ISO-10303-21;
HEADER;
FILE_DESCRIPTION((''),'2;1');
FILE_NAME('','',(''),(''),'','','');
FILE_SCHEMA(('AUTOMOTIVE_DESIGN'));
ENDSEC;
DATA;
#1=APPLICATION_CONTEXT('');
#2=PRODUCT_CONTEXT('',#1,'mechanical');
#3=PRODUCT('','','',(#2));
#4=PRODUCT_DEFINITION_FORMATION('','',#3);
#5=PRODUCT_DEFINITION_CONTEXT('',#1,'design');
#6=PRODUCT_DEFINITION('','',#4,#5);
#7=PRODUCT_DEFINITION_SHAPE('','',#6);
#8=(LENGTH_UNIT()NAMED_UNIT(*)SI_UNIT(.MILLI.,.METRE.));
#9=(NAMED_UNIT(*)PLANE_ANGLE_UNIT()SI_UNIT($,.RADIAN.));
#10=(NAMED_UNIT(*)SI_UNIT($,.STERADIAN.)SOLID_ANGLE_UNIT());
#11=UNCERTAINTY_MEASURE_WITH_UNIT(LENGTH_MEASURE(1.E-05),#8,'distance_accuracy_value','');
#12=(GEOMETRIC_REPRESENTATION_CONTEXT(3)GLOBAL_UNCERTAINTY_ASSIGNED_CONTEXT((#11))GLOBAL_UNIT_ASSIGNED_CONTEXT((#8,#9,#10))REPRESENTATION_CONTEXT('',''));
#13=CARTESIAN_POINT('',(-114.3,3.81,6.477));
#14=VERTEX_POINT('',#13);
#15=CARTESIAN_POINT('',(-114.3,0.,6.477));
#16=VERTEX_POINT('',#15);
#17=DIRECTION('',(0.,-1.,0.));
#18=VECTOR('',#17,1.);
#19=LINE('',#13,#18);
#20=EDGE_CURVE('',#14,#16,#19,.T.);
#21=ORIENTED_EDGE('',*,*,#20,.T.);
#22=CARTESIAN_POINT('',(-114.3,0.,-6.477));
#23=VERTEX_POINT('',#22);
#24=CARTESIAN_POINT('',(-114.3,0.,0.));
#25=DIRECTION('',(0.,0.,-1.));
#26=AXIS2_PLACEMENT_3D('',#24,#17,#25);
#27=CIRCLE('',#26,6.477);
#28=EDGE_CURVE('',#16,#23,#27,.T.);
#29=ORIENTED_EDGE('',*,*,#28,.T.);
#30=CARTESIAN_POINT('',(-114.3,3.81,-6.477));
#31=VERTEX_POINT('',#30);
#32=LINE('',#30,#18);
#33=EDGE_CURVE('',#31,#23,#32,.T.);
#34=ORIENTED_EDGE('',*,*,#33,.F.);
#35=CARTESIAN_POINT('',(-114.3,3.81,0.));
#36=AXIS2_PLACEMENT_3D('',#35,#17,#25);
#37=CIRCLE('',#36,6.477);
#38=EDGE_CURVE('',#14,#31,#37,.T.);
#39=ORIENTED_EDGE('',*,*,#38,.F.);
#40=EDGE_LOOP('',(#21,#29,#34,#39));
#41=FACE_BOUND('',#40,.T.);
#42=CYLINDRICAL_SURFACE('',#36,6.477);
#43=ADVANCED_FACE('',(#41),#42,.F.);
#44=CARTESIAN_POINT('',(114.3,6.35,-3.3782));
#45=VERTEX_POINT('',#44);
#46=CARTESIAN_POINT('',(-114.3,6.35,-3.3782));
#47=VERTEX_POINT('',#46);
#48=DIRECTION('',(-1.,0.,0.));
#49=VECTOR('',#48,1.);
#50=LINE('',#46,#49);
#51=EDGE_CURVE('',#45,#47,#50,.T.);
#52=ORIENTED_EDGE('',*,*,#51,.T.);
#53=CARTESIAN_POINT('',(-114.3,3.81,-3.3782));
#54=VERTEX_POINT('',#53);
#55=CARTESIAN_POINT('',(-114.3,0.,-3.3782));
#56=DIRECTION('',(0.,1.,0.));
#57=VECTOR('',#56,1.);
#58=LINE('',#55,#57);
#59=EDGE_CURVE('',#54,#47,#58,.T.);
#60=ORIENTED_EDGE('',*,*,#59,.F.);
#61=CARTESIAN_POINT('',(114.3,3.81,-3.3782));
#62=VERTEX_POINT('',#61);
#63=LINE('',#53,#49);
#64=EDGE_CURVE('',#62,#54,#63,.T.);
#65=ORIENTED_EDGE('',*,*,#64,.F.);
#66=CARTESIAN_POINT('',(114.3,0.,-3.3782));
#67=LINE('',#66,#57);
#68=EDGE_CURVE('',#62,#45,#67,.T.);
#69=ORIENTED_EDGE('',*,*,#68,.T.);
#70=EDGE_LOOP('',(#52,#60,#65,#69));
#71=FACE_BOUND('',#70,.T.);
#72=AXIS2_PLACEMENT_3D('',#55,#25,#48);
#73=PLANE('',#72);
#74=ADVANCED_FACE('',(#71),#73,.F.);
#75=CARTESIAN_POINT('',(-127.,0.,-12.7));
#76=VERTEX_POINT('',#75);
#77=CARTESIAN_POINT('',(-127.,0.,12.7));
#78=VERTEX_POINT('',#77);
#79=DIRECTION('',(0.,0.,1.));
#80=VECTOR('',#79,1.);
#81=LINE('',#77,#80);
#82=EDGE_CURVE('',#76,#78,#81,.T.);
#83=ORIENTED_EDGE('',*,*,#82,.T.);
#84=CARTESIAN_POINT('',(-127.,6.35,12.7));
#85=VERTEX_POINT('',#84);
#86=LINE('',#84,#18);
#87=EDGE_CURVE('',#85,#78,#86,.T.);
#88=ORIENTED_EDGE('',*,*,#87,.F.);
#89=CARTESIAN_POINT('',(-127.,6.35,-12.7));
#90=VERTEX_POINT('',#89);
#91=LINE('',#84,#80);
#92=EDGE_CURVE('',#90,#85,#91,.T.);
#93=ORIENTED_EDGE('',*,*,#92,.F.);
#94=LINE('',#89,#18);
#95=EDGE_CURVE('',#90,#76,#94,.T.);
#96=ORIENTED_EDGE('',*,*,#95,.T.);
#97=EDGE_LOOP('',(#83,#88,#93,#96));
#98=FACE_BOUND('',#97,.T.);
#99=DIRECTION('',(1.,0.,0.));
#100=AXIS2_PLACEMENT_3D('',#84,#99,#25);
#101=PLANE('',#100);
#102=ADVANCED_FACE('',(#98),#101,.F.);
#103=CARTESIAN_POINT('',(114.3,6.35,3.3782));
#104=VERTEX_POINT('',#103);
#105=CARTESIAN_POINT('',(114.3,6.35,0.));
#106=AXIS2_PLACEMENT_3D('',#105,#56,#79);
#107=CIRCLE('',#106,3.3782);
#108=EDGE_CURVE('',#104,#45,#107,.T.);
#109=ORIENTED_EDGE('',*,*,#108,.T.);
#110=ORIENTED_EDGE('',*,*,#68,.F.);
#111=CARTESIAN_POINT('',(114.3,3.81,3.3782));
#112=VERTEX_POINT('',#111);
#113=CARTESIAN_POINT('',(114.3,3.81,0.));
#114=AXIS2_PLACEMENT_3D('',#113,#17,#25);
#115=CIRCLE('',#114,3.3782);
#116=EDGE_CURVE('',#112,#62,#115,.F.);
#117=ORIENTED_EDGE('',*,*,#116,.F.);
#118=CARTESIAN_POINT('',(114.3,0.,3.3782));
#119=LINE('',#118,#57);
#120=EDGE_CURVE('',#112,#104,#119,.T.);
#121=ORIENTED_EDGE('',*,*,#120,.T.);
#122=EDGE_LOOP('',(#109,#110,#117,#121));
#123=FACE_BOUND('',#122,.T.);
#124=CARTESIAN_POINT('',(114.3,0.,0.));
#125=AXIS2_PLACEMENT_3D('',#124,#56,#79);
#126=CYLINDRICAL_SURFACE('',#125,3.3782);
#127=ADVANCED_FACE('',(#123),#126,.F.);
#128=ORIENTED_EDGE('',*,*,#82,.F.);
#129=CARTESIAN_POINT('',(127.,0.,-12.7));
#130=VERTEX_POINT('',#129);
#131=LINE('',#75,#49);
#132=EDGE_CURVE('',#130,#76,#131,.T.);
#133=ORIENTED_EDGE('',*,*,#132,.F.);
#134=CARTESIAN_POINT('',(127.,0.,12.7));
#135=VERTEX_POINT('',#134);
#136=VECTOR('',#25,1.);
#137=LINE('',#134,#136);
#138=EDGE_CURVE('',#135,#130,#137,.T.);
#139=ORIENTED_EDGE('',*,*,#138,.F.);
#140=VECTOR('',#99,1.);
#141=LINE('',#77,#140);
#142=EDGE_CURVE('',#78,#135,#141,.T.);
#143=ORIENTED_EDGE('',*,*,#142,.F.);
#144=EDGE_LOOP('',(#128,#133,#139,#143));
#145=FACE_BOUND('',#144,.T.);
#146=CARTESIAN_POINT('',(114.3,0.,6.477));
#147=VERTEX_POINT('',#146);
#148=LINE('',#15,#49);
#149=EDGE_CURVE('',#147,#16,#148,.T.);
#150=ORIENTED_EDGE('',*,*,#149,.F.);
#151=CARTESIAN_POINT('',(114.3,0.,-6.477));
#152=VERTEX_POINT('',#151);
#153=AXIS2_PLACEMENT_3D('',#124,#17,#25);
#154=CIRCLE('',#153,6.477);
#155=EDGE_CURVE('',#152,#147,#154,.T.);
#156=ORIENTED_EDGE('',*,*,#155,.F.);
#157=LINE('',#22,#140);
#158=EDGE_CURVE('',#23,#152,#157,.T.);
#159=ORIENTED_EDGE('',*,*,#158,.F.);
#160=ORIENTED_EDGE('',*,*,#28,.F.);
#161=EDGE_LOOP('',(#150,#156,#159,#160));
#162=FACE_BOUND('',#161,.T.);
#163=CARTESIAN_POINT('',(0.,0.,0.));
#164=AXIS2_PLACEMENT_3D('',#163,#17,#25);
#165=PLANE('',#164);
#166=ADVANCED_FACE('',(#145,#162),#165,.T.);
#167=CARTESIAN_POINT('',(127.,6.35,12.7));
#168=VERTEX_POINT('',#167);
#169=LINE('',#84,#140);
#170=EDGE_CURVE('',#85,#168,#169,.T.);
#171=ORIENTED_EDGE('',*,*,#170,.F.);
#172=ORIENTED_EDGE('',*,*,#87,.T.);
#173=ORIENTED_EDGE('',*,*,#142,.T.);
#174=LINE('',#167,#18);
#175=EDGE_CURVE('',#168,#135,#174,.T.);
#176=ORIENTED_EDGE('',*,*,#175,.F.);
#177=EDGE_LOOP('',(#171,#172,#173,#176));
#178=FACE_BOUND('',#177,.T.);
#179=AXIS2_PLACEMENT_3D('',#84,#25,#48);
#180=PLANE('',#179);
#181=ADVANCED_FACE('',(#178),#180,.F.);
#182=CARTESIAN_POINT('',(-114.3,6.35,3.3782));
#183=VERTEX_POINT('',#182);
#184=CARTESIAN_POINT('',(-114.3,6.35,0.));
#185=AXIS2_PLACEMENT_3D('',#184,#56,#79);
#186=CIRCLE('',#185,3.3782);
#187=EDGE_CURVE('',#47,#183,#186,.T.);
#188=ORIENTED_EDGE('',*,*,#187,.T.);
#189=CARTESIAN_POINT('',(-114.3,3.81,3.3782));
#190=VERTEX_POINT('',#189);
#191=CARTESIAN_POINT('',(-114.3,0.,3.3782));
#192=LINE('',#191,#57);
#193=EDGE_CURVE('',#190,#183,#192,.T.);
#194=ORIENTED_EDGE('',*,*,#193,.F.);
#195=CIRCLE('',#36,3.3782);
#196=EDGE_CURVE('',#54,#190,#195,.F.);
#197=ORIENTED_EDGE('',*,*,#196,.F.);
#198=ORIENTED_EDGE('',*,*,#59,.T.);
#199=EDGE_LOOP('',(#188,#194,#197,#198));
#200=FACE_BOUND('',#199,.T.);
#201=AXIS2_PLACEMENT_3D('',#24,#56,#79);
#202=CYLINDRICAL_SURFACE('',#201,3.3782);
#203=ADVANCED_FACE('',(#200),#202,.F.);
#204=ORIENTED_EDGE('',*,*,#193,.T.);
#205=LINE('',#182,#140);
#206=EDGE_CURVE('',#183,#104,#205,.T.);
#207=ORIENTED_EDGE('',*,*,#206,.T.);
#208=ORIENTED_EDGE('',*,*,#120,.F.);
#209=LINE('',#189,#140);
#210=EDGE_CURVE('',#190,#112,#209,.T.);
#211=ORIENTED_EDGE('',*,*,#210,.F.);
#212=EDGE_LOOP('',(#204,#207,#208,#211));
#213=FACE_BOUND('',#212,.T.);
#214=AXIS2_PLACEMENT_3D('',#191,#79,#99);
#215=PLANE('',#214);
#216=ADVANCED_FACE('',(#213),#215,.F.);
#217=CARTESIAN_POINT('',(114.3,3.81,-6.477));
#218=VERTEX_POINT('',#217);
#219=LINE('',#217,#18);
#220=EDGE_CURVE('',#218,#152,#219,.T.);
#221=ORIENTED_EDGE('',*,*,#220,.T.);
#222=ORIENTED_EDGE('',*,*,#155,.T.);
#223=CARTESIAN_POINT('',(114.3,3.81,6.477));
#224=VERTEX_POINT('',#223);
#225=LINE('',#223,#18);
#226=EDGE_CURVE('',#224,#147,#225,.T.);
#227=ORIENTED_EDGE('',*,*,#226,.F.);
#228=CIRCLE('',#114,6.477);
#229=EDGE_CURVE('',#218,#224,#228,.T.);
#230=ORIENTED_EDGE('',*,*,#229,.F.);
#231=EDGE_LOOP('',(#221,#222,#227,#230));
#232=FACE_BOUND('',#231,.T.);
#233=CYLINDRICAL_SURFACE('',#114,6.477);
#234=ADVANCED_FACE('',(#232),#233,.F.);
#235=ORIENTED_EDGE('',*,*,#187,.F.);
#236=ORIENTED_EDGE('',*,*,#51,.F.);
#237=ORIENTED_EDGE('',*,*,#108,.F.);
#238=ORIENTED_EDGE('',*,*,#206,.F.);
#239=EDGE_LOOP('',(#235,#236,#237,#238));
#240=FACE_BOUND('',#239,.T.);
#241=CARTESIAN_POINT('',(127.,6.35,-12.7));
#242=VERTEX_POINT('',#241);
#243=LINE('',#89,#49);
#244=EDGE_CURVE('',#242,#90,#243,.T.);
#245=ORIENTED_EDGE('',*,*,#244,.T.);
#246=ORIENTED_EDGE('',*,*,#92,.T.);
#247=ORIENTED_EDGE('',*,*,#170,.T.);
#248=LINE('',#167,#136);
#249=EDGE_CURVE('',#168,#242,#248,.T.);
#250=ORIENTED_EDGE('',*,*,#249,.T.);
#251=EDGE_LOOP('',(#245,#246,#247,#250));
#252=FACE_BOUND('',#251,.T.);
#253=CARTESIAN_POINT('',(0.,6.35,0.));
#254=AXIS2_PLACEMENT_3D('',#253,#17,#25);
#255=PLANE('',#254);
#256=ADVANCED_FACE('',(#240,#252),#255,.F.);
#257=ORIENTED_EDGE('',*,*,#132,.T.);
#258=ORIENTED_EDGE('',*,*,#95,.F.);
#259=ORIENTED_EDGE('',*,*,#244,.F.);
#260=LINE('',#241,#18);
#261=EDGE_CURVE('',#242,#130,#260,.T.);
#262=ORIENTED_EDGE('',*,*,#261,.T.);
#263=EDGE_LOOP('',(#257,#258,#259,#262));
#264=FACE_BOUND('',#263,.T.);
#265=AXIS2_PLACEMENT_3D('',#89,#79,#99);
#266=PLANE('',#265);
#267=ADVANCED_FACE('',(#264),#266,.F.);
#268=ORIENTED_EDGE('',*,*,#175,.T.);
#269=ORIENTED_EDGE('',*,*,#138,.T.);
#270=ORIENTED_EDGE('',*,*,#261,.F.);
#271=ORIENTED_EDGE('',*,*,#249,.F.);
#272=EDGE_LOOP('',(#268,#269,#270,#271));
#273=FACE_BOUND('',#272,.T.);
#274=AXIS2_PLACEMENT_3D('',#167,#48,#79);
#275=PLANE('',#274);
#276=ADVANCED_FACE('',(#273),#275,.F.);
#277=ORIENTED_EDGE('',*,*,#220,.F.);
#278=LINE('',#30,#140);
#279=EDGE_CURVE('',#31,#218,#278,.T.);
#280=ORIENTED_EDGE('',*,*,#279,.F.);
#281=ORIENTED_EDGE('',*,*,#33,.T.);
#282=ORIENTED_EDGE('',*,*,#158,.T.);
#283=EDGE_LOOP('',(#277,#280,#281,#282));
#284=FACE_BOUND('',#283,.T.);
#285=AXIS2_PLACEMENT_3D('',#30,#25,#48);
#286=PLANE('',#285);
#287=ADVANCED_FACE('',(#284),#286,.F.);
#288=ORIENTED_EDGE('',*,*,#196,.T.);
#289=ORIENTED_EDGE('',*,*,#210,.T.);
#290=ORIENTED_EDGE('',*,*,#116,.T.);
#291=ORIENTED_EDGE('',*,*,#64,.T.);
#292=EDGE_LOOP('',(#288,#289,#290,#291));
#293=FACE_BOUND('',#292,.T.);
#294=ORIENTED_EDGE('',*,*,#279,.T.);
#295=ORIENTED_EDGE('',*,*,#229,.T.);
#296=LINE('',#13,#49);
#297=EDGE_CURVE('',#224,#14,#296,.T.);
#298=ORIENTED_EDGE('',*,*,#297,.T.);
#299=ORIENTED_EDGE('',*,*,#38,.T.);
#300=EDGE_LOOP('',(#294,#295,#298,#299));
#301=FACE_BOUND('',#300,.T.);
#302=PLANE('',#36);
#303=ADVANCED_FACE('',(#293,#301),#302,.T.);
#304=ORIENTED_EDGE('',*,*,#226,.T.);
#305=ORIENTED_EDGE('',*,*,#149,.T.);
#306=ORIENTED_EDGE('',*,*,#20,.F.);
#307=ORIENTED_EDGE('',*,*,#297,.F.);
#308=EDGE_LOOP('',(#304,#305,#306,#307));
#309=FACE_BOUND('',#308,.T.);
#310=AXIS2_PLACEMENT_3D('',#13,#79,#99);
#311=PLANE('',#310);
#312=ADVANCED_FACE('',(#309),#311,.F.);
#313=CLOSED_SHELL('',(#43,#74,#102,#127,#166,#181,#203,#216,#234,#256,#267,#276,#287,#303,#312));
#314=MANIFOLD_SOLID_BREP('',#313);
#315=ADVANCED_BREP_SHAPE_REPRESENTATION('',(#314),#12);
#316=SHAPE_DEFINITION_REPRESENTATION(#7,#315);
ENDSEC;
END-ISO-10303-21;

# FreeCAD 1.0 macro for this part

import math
import FreeCAD as App
import Part
import Sketcher

V = App.Vector
Q = App.Units.Quantity

doc = App.newDocument("Part")
body = doc.addObject("PartDesign::Body", "Body")

# Sketch on XZ plane
sketch1 = doc.addObject("Sketcher::SketchObject", "Sketch")
body.addObject(sketch1)
sketch1.AttachmentSupport = (doc.XZ_Plane, [""])
sketch1.MapMode = "FlatFace"
sketch1.addGeometry(Part.LineSegment(V(-127, -13, 0), V(-127, 13, 0)), False)
sketch1.addGeometry(Part.LineSegment(V(-127, 13, 0), V(127, 13, 0)), False)
sketch1.addGeometry(Part.LineSegment(V(127, 13, 0), V(127, -13, 0)), False)
sketch1.addGeometry(Part.LineSegment(V(127, -13, 0), V(-127, -13, 0)), False)
sketch1.addConstraint(Sketcher.Constraint("Coincident", 0, 2, 1, 1))
sketch1.addConstraint(Sketcher.Constraint("Coincident", 1, 2, 2, 1))
sketch1.addConstraint(Sketcher.Constraint("Coincident", 2, 2, 3, 1))
sketch1.addConstraint(Sketcher.Constraint("Coincident", 3, 2, 0, 1))
sketch1.addConstraint(Sketcher.Constraint("Vertical", 0))
sketch1.addConstraint(Sketcher.Constraint("Horizontal", 1))
sketch1.addConstraint(Sketcher.Constraint("Vertical", 2))
sketch1.addConstraint(Sketcher.Constraint("Horizontal", 3))
sketch1.addConstraint(Sketcher.Constraint("Symmetric", 0, 2, 2, 2, -1, 1))
sketch1.addConstraint(Sketcher.Constraint("DistanceX", 1, 1, 1, 2, Q("10 in")))
sketch1.addConstraint(Sketcher.Constraint("DistanceY", 0, 1, 0, 2, Q("1 in")))
pad1 = doc.addObject("PartDesign::Pad", "Pad")
body.addObject(pad1)
pad1.Profile = sketch1
pad1.Length = Q("0.25 in")
pad1.Reversed = True

# Sketch on XZ plane
sketch2 = doc.addObject("Sketcher::SketchObject", "Sketch001")
body.addObject(sketch2)
sketch2.AttachmentSupport = (doc.XZ_Plane, [""])
sketch2.MapMode = "FlatFace"
sketch2.AttachmentOffset = App.Placement(V(0, 0, -0.25 * 25.4), App.Rotation())
sketch2.addGeometry(Part.LineSegment(V(114.3, -3.4, 0), V(-114.3, -3.4, 0)), False)
sketch2.addGeometry(Part.ArcOfCircle(Part.Circle(V(-114.3, 0, 0), V(0, 0, 1), 3.4), math.radians(90), math.radians(270)), False)
sketch2.addGeometry(Part.LineSegment(V(-114.3, 3.4, 0), V(114.3, 3.4, 0)), False)
sketch2.addGeometry(Part.ArcOfCircle(Part.Circle(V(114.3, 0, 0), V(0, 0, 1), 3.4), math.radians(-90), math.radians(90)), False)
sketch2.addConstraint(Sketcher.Constraint("Tangent", 0, 2, 1, 2))
sketch2.addConstraint(Sketcher.Constraint("Tangent", 1, 1, 2, 1))
sketch2.addConstraint(Sketcher.Constraint("Tangent", 2, 2, 3, 2))
sketch2.addConstraint(Sketcher.Constraint("Tangent", 3, 1, 0, 1))
sketch2.addConstraint(Sketcher.Constraint("Horizontal", 0))
sketch2.addConstraint(Sketcher.Constraint("Horizontal", 2))
sketch2.addConstraint(Sketcher.Constraint("Symmetric", 1, 3, 3, 3, -1, 1))
sketch2.addConstraint(Sketcher.Constraint("DistanceX", 0, 2, 0, 1, Q("9 in")))
sketch2.addConstraint(Sketcher.Constraint("Radius", 1, Q("0.133 in")))
pocket1 = doc.addObject("PartDesign::Pocket", "Pocket")
body.addObject(pocket1)
pocket1.Profile = sketch2
pocket1.Type = "ThroughAll"
pocket1.Reversed = True

# Sketch on XZ plane
sketch3 = doc.addObject("Sketcher::SketchObject", "Sketch002")
body.addObject(sketch3)
sketch3.AttachmentSupport = (doc.XZ_Plane, [""])
sketch3.MapMode = "FlatFace"
sketch3.addGeometry(Part.LineSegment(V(114, 6, 0), V(-114, 6, 0)), False)
sketch3.addGeometry(Part.ArcOfCircle(Part.Circle(V(-114, 0, 0), V(0, 0, 1), 6), math.radians(90), math.radians(270)), False)
sketch3.addGeometry(Part.LineSegment(V(-114, -6, 0), V(114, -6, 0)), False)
sketch3.addGeometry(Part.ArcOfCircle(Part.Circle(V(114, 0, 0), V(0, 0, 1), 6), math.radians(-90), math.radians(90)), False)
sketch3.addConstraint(Sketcher.Constraint("Tangent", 0, 2, 1, 1))
sketch3.addConstraint(Sketcher.Constraint("Tangent", 1, 2, 2, 1))
sketch3.addConstraint(Sketcher.Constraint("Tangent", 2, 2, 3, 1))
sketch3.addConstraint(Sketcher.Constraint("Tangent", 3, 2, 0, 1))
sketch3.addConstraint(Sketcher.Constraint("Horizontal", 0))
sketch3.addConstraint(Sketcher.Constraint("Horizontal", 2))
sketch3.addConstraint(Sketcher.Constraint("Symmetric", 1, 3, 3, 3, -1, 1))
sketch3.addConstraint(Sketcher.Constraint("DistanceX", 0, 2, 0, 1, Q("9 in")))
sketch3.addConstraint(Sketcher.Constraint("Radius", 1, Q("0.255 in")))
pocket2 = doc.addObject("PartDesign::Pocket", "Pocket001")
body.addObject(pocket2)
pocket2.Profile = sketch3
pocket2.Length = Q("0.15 in")

doc.recompute()
